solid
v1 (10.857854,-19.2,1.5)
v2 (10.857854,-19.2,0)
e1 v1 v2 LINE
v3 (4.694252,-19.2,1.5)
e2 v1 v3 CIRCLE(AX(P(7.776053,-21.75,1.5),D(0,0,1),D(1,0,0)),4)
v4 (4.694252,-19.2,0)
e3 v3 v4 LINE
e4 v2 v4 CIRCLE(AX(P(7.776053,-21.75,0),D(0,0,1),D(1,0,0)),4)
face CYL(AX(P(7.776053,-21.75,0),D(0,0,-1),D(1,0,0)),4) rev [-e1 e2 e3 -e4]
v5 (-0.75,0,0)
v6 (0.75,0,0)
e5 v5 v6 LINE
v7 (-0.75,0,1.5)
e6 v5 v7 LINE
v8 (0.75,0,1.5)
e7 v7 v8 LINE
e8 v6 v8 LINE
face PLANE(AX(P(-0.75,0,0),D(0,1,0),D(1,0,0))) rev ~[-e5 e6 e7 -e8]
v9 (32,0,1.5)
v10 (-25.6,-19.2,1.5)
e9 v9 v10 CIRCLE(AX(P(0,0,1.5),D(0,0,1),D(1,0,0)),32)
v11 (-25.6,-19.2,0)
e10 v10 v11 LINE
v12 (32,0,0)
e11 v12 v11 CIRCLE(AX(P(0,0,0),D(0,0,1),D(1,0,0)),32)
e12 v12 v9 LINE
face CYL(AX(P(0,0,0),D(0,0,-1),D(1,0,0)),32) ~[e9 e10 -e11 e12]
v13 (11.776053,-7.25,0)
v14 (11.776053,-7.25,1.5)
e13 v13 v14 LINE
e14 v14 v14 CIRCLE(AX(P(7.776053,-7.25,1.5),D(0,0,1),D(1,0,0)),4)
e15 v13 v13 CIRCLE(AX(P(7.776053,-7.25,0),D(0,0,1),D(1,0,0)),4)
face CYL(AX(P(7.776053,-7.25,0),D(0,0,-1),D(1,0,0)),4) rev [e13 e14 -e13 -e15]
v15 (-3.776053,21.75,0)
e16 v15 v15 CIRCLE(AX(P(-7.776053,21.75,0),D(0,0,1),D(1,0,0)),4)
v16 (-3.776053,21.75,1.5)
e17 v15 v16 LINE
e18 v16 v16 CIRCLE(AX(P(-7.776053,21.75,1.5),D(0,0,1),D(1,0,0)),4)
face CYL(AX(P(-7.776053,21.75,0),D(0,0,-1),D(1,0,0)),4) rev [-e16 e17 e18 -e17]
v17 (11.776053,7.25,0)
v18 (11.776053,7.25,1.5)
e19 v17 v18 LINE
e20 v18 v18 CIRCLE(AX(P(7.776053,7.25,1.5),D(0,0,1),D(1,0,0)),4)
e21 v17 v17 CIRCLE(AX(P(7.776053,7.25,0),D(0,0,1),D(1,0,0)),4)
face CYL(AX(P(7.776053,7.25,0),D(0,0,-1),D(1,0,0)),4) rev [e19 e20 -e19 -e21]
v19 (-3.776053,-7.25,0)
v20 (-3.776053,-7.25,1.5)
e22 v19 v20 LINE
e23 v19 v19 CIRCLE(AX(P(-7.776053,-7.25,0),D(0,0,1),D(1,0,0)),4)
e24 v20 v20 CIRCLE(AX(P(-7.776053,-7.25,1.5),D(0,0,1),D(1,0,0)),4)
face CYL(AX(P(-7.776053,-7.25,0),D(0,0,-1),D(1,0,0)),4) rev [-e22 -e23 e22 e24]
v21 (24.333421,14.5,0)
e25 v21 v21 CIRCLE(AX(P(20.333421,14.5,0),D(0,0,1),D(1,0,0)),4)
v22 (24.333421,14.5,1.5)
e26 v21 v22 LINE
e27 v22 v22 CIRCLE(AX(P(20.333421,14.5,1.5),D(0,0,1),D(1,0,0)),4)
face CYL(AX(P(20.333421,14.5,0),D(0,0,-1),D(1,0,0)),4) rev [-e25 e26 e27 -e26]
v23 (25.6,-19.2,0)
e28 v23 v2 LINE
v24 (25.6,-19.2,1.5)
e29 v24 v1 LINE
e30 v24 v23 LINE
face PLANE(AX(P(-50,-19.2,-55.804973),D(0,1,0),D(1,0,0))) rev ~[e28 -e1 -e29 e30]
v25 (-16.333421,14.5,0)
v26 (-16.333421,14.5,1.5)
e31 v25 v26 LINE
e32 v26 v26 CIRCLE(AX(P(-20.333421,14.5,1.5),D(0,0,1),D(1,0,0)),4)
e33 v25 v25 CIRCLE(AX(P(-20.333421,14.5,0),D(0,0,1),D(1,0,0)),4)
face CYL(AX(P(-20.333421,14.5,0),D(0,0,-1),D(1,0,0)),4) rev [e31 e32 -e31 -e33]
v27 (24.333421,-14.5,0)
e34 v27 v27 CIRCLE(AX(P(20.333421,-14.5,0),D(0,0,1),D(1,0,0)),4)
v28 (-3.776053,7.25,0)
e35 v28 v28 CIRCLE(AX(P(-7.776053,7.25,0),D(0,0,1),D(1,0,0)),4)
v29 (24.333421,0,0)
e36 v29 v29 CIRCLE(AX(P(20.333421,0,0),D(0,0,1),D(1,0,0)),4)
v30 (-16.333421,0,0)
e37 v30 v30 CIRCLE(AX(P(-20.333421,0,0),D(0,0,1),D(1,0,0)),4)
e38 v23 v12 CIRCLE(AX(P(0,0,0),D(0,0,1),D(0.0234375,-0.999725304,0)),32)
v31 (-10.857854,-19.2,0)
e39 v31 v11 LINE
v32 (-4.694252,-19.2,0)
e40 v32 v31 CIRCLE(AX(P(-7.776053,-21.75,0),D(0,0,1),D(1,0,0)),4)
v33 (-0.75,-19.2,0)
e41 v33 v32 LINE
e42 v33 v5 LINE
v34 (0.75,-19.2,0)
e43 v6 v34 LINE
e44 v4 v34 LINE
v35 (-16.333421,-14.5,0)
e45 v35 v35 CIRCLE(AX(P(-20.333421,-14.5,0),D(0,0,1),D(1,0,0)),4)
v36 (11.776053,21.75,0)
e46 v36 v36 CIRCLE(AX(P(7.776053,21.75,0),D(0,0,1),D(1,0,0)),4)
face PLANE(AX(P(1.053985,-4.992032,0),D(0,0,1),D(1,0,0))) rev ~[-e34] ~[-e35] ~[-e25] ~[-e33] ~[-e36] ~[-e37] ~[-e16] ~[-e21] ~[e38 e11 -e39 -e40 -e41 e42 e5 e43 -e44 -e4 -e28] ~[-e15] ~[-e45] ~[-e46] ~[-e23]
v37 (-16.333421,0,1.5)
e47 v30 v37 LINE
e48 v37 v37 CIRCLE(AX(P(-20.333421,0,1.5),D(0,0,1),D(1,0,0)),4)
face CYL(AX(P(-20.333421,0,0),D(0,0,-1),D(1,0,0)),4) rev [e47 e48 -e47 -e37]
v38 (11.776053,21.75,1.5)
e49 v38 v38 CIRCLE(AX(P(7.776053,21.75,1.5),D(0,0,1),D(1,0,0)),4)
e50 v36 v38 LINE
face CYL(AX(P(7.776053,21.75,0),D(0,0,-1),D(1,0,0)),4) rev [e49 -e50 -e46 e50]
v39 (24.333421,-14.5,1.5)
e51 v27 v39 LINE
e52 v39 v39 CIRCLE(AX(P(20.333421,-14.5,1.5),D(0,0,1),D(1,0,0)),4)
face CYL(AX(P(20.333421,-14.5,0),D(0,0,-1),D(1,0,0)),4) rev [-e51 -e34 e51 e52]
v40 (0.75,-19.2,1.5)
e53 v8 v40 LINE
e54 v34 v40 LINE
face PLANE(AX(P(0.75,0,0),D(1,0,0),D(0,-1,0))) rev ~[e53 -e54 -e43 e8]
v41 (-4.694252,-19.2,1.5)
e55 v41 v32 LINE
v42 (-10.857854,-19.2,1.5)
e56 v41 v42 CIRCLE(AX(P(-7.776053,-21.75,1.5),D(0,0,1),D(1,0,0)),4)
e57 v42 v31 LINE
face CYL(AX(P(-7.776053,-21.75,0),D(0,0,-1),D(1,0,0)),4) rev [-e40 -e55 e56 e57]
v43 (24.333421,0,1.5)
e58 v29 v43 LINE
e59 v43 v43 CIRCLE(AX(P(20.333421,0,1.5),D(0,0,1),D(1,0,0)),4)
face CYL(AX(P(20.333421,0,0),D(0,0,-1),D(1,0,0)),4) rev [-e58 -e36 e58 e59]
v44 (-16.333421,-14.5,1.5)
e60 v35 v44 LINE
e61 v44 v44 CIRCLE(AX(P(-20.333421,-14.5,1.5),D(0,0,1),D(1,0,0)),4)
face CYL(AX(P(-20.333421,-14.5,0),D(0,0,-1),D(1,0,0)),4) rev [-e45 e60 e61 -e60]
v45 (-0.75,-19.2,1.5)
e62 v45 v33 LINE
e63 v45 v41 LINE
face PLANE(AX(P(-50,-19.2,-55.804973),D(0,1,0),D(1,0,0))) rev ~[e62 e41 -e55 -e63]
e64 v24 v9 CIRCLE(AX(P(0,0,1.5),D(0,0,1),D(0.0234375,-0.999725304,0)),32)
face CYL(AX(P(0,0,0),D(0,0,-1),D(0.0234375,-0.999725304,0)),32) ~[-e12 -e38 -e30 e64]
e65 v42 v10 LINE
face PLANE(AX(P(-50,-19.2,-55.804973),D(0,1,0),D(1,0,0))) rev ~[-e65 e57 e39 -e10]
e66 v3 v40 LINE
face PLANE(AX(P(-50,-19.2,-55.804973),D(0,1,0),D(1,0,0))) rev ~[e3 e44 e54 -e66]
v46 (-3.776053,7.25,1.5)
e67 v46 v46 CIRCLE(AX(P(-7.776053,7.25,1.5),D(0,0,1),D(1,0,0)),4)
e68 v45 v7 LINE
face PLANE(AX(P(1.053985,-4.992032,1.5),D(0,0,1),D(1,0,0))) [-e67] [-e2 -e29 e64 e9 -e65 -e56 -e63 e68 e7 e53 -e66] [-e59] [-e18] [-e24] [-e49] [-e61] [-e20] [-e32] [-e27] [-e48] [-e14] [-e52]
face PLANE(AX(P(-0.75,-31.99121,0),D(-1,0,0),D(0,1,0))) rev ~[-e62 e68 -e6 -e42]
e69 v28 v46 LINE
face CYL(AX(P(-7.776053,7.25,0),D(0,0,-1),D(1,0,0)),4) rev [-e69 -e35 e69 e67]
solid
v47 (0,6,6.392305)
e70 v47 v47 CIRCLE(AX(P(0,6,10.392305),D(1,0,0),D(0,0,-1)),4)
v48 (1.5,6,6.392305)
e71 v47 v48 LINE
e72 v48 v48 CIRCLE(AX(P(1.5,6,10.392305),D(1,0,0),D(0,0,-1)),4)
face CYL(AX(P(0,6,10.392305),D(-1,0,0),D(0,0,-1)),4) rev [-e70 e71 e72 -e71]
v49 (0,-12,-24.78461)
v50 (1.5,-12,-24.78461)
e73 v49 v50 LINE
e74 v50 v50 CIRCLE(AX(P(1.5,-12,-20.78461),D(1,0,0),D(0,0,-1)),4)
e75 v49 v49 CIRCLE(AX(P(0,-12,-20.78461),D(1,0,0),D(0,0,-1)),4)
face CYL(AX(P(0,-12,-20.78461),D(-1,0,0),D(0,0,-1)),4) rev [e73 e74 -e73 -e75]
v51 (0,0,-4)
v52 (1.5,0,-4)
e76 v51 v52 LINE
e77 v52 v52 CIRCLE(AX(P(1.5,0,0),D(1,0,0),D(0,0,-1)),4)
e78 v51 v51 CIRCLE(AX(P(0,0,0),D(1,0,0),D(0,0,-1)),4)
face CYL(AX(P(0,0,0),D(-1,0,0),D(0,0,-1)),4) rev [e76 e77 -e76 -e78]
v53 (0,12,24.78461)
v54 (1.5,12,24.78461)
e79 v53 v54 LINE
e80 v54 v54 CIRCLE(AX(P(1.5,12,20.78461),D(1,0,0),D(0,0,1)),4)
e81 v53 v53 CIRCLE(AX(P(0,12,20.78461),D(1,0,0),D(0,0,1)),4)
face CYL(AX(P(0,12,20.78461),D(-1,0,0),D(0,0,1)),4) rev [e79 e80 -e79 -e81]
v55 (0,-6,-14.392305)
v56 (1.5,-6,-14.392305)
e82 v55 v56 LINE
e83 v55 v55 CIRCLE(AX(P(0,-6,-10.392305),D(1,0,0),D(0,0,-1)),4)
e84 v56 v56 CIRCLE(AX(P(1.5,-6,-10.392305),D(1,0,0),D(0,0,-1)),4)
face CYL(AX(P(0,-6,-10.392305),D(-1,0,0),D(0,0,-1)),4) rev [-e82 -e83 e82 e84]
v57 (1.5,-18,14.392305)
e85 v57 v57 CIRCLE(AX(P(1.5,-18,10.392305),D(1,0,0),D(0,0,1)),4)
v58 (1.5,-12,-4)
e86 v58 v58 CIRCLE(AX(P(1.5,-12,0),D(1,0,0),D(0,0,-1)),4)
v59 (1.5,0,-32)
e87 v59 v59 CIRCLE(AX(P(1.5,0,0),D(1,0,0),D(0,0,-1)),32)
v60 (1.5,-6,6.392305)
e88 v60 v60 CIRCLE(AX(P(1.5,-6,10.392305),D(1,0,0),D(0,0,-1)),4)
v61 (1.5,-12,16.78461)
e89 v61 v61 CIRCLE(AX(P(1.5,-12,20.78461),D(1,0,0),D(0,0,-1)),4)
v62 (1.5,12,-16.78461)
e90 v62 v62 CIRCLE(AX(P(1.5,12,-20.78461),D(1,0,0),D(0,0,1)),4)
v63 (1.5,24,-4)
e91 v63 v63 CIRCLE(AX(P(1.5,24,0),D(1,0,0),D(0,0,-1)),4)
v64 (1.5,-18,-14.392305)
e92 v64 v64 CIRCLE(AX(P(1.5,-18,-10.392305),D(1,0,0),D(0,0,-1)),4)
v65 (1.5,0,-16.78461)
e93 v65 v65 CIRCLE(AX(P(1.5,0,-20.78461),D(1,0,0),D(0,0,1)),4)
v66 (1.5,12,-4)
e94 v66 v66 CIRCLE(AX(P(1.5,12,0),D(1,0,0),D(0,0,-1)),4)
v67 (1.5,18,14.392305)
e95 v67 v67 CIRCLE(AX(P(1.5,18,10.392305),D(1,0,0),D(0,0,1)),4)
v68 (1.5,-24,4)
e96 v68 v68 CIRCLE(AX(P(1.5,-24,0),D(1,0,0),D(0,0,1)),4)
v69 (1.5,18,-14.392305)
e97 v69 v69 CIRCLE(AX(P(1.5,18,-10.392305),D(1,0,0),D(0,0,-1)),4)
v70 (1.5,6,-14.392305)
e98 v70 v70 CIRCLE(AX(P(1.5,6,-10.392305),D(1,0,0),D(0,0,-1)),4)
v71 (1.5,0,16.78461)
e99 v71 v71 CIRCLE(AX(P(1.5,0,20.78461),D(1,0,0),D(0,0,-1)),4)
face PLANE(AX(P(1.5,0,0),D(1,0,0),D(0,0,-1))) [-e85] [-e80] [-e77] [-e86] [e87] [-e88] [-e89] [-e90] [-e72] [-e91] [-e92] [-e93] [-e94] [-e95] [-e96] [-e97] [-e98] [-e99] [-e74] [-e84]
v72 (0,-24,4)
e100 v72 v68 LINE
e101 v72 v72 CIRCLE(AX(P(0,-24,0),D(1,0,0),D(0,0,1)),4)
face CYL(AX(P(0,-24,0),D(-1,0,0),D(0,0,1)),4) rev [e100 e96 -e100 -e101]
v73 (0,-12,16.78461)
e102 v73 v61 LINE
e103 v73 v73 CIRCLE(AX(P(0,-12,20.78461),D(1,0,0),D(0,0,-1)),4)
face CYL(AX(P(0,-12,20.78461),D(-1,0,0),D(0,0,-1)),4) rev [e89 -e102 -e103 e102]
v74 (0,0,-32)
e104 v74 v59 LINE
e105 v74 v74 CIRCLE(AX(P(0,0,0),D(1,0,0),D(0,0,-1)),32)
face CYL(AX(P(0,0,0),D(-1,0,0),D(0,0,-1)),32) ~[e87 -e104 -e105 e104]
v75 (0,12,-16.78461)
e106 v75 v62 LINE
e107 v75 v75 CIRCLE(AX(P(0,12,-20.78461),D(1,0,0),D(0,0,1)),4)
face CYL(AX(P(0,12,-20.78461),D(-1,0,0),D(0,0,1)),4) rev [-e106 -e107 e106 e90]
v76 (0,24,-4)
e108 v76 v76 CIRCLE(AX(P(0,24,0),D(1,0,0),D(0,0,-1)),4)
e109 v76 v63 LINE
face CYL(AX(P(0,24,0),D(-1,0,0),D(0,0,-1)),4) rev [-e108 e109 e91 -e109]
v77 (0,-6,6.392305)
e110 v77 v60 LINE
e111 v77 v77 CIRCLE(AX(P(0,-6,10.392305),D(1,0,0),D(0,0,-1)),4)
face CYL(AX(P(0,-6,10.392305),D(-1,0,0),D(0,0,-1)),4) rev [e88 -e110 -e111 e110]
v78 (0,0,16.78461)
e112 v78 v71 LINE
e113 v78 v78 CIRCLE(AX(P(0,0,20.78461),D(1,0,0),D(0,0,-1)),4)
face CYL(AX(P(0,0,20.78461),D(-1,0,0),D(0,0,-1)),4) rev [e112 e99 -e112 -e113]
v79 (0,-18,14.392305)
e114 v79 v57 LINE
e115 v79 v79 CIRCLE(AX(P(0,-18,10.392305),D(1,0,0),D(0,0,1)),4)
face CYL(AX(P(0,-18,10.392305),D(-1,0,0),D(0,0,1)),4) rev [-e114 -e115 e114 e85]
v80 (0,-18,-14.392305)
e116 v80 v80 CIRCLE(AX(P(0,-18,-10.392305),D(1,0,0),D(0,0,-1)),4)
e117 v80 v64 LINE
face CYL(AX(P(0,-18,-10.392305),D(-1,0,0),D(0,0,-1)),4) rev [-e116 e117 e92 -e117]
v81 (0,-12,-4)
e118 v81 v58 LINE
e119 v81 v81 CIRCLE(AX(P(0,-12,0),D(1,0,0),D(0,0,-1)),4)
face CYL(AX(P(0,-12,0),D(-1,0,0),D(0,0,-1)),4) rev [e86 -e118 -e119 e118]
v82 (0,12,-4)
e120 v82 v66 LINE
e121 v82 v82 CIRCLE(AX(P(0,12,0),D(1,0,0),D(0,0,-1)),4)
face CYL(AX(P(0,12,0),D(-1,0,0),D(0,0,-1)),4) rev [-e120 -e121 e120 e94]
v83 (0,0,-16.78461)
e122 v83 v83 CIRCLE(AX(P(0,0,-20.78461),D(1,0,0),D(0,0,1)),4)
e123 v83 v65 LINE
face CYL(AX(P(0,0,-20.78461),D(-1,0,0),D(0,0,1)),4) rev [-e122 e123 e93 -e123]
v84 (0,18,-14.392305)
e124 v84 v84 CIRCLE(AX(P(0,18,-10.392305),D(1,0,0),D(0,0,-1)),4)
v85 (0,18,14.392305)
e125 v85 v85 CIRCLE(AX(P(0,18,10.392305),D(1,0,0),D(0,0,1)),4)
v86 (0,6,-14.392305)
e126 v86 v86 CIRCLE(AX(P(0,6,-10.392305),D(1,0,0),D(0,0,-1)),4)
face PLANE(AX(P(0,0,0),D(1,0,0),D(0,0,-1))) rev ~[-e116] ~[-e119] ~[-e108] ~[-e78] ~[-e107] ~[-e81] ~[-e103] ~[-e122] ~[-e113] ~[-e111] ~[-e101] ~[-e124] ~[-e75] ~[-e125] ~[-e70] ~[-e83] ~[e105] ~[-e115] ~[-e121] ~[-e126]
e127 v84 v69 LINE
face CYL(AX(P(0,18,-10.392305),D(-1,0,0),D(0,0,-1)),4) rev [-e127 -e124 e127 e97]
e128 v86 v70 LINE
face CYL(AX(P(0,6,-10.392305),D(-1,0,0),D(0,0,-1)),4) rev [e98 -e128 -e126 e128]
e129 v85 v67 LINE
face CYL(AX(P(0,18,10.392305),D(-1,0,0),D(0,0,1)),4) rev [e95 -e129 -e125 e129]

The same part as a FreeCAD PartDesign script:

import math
import FreeCAD as App
import Part
import Sketcher
from FreeCAD import Vector

doc = App.newDocument("Part")
body = doc.addObject("PartDesign::Body", "Body")

sketch1 = body.newObject("Sketcher::SketchObject", "Sketch")
sketch1.AttachmentSupport = (doc.getObject("YZ_Plane"), [""])
sketch1.MapMode = "FlatFace"
sketch1.addGeometry([
    Part.Circle(Vector(0, 0, 0), Vector(0, 0, 1), 32),
    Part.Circle(Vector(-18, 10.4, 0), Vector(0, 0, 1), 4),
    Part.Circle(Vector(-12, 20.8, 0), Vector(0, 0, 1), 4),
    Part.Circle(Vector(-6, 10.4, 0), Vector(0, 0, 1), 4),
    Part.Circle(Vector(-24, 0, 0), Vector(0, 0, 1), 4),
    Part.Circle(Vector(-18, -10.4, 0), Vector(0, 0, 1), 4),
    Part.Circle(Vector(-12, 0, 0), Vector(0, 0, 1), 4),
    Part.Circle(Vector(-6, -10.4, 0), Vector(0, 0, 1), 4),
    Part.Circle(Vector(-12, -20.8, 0), Vector(0, 0, 1), 4),
    Part.Circle(Vector(0, 20.8, 0), Vector(0, 0, 1), 4),
    Part.Circle(Vector(12, 20.8, 0), Vector(0, 0, 1), 4),
    Part.Circle(Vector(6, 10.4, 0), Vector(0, 0, 1), 4),
    Part.Circle(Vector(18, 10.4, 0), Vector(0, 0, 1), 4),
    Part.Circle(Vector(0, 0, 0), Vector(0, 0, 1), 4),
    Part.Circle(Vector(6, -10.4, 0), Vector(0, 0, 1), 4),
    Part.Circle(Vector(12, 0, 0), Vector(0, 0, 1), 4),
    Part.Circle(Vector(0, -20.8, 0), Vector(0, 0, 1), 4),
    Part.Circle(Vector(12, -20.8, 0), Vector(0, 0, 1), 4),
    Part.Circle(Vector(18, -10.4, 0), Vector(0, 0, 1), 4),
    Part.Circle(Vector(24, 0, 0), Vector(0, 0, 1), 4),
], False)
sketch1.addConstraint([
    Sketcher.Constraint("Coincident", 0, 3, -1, 1),
    Sketcher.Constraint("Coincident", 13, 3, -1, 1),
    Sketcher.Constraint("Equal", 1, 2),
    Sketcher.Constraint("Equal", 2, 3),
    Sketcher.Constraint("Equal", 3, 4),
    Sketcher.Constraint("Equal", 4, 5),
    Sketcher.Constraint("Equal", 5, 6),
    Sketcher.Constraint("Equal", 6, 7),
    Sketcher.Constraint("Equal", 7, 8),
    Sketcher.Constraint("Equal", 8, 9),
    Sketcher.Constraint("Equal", 9, 10),
    Sketcher.Constraint("Equal", 10, 11),
    Sketcher.Constraint("Equal", 11, 12),
    Sketcher.Constraint("Equal", 12, 13),
    Sketcher.Constraint("Equal", 13, 14),
    Sketcher.Constraint("Equal", 14, 15),
    Sketcher.Constraint("Equal", 15, 16),
    Sketcher.Constraint("Equal", 16, 17),
    Sketcher.Constraint("Equal", 17, 18),
    Sketcher.Constraint("Equal", 18, 19),
    Sketcher.Constraint("Symmetric", 8, 3, 10, 3, -1, 1),
    Sketcher.Constraint("Symmetric", 7, 3, 11, 3, -1, 1),
    Sketcher.Constraint("Symmetric", 5, 3, 12, 3, -1, 1),
    Sketcher.Constraint("Symmetric", 3, 3, 14, 3, -1, 1),
    Sketcher.Constraint("Symmetric", 6, 3, 15, 3, -1, 1),
    Sketcher.Constraint("Symmetric", 9, 3, 16, 3, -1, 1),
    Sketcher.Constraint("Symmetric", 2, 3, 17, 3, -1, 1),
    Sketcher.Constraint("Symmetric", 1, 3, 18, 3, -1, 1),
    Sketcher.Constraint("Symmetric", 4, 3, 19, 3, -1, 1),
    Sketcher.Constraint("Symmetric", 2, 3, 10, 3, -2),
    Sketcher.Constraint("Symmetric", 3, 3, 11, 3, -2),
    Sketcher.Constraint("Symmetric", 1, 3, 12, 3, -2),
    Sketcher.Constraint("PointOnObject", 4, 3, -1),
    Sketcher.Constraint("PointOnObject", 6, 3, -1),
    Sketcher.Constraint("PointOnObject", 9, 3, -2),
    Sketcher.Constraint("Horizontal", 1, 3, 3, 3),
    Sketcher.Constraint("Horizontal", 2, 3, 9, 3),
    Sketcher.Constraint("Vertical", 2, 3, 6, 3),
    Sketcher.Constraint("Diameter", 0, 64.0),
    Sketcher.Constraint("Diameter", 1, 8.0),
    Sketcher.Constraint("DistanceX", 1, 3, -1, 1, 18.0),
    Sketcher.Constraint("DistanceX", 2, 3, -1, 1, 12.0),
    Sketcher.Constraint("DistanceX", 3, 3, -1, 1, 6.0),
    Sketcher.Constraint("DistanceX", 4, 3, -1, 1, 24.0),
    Sketcher.Constraint("DistanceY", -1, 1, 2, 3, 20.78461),
    Sketcher.Constraint("DistanceY", 5, 3, 1, 3, 20.78461),
])
pad1 = body.newObject("PartDesign::Pad", "Pad")
pad1.Profile = sketch1
pad1.Length = 1.5
body2 = doc.addObject("PartDesign::Body", "Body001")

sketch2 = body2.newObject("Sketcher::SketchObject", "Sketch001")
sketch2.AttachmentSupport = (doc.getObject("XY_Plane001"), [""])
sketch2.MapMode = "FlatFace"
sketch2.addGeometry([
    Part.ArcOfCircle(Part.Circle(Vector(0, 0, 0), Vector(0, 0, 1), 32), math.radians(0), math.radians(269)),
    Part.LineSegment(Vector(-0.8, -32, 0), Vector(-0.8, 0, 0)),
    Part.LineSegment(Vector(-0.8, 0, 0), Vector(0.8, 0, 0)),
    Part.LineSegment(Vector(0.8, 0, 0), Vector(0.8, -32, 0)),
    Part.ArcOfCircle(Part.Circle(Vector(0, 0, 0), Vector(0, 0, 1), 32), math.radians(-89), math.radians(0)),
    Part.Circle(Vector(-20.3, -14.5, 0), Vector(0, 0, 1), 4),
    Part.Circle(Vector(-7.8, -21.8, 0), Vector(0, 0, 1), 4),
    Part.Circle(Vector(-20.3, 0, 0), Vector(0, 0, 1), 4),
    Part.Circle(Vector(-7.8, -7.2, 0), Vector(0, 0, 1), 4),
    Part.Circle(Vector(7.8, -21.8, 0), Vector(0, 0, 1), 4),
    Part.Circle(Vector(20.3, -14.5, 0), Vector(0, 0, 1), 4),
    Part.Circle(Vector(7.8, -7.2, 0), Vector(0, 0, 1), 4),
    Part.Circle(Vector(20.3, 0, 0), Vector(0, 0, 1), 4),
    Part.Circle(Vector(-7.8, 7.2, 0), Vector(0, 0, 1), 4),
    Part.Circle(Vector(-20.3, 14.5, 0), Vector(0, 0, 1), 4),
    Part.Circle(Vector(-7.8, 21.8, 0), Vector(0, 0, 1), 4),
    Part.Circle(Vector(7.8, 7.2, 0), Vector(0, 0, 1), 4),
    Part.Circle(Vector(7.8, 21.8, 0), Vector(0, 0, 1), 4),
    Part.Circle(Vector(20.3, 14.5, 0), Vector(0, 0, 1), 4),
], False)
sketch2.addConstraint([
    Sketcher.Constraint("Coincident", 0, 2, 1, 1),
    Sketcher.Constraint("Coincident", 1, 2, 2, 1),
    Sketcher.Constraint("Coincident", 2, 2, 3, 1),
    Sketcher.Constraint("Coincident", 3, 2, 4, 1),
    Sketcher.Constraint("Tangent", 4, 2, 0, 1),
    Sketcher.Constraint("Vertical", 1),
    Sketcher.Constraint("Horizontal", 2),
    Sketcher.Constraint("Vertical", 3),
    Sketcher.Constraint("Coincident", 0, 3, -1, 1),
    Sketcher.Constraint("Equal", 0, 4),
    Sketcher.Constraint("Equal", 5, 6),
    Sketcher.Constraint("Equal", 6, 7),
    Sketcher.Constraint("Equal", 7, 8),
    Sketcher.Constraint("Equal", 8, 9),
    Sketcher.Constraint("Equal", 9, 10),
    Sketcher.Constraint("Equal", 10, 11),
    Sketcher.Constraint("Equal", 11, 12),
    Sketcher.Constraint("Equal", 12, 13),
    Sketcher.Constraint("Equal", 13, 14),
    Sketcher.Constraint("Equal", 14, 15),
    Sketcher.Constraint("Equal", 15, 16),
    Sketcher.Constraint("Equal", 16, 17),
    Sketcher.Constraint("Equal", 17, 18),
    Sketcher.Constraint("Symmetric", 7, 3, 12, 3, -1, 1),
    Sketcher.Constraint("Symmetric", 11, 3, 13, 3, -1, 1),
    Sketcher.Constraint("Symmetric", 10, 3, 14, 3, -1, 1),
    Sketcher.Constraint("Symmetric", 9, 3, 15, 3, -1, 1),
    Sketcher.Constraint("Symmetric", 8, 3, 16, 3, -1, 1),
    Sketcher.Constraint("Symmetric", 6, 3, 17, 3, -1, 1),
    Sketcher.Constraint("Symmetric", 5, 3, 18, 3, -1, 1),
    Sketcher.Constraint("Symmetric", 1, 2, 2, 2, -1, 1),
    Sketcher.Constraint("Symmetric", 6, 3, 9, 3, -2),
    Sketcher.Constraint("Symmetric", 5, 3, 10, 3, -2),
    Sketcher.Constraint("Symmetric", 8, 3, 11, 3, -2),
    Sketcher.Constraint("PointOnObject", 7, 3, -1),
    Sketcher.Constraint("PointOnObject", 4, 2, -1),
    Sketcher.Constraint("Vertical", 5, 3, 7, 3),
    Sketcher.Constraint("Vertical", 6, 3, 8, 3),
    Sketcher.Constraint("Diameter", 5, 8.0),
    Sketcher.Constraint("Radius", 0, 32.0),
    Sketcher.Constraint("DistanceX", 2, 1, 2, 2, 1.5),
    Sketcher.Constraint("DistanceY", 5, 3, -1, 1, 14.5),
    Sketcher.Constraint("DistanceY", 6, 3, 8, 3, 14.5),
    Sketcher.Constraint("DistanceY", 8, 3, 13, 3, 14.5),
    Sketcher.Constraint("DistanceX", 5, 3, -1, 1, 20.333421),
    Sketcher.Constraint("DistanceX", 5, 3, 6, 3, 12.557368),
])
pad2 = body2.newObject("PartDesign::Pad", "Pad001")
pad2.Profile = sketch2
pad2.Length = 1.5

sketch3 = body2.newObject("Sketcher::SketchObject", "Sketch002")
sketch3.AttachmentSupport = (doc.getObject("XY_Plane001"), [""])
sketch3.MapMode = "FlatFace"
sketch3.AttachmentOffset = App.Placement(Vector(0, 0, 1.5), App.Rotation())
sketch3.addGeometry([
    Part.LineSegment(Vector(-50, -19, 0), Vector(-50, -32, 0)),
    Part.LineSegment(Vector(-50, -32, 0), Vector(50, -32, 0)),
    Part.LineSegment(Vector(50, -32, 0), Vector(50, -19, 0)),
    Part.LineSegment(Vector(50, -19, 0), Vector(-50, -19, 0)),
], False)
sketch3.addConstraint([
    Sketcher.Constraint("Coincident", 0, 2, 1, 1),
    Sketcher.Constraint("Coincident", 1, 2, 2, 1),
    Sketcher.Constraint("Coincident", 2, 2, 3, 1),
    Sketcher.Constraint("Coincident", 3, 2, 0, 1),
    Sketcher.Constraint("Vertical", 0),
    Sketcher.Constraint("Horizontal", 1),
    Sketcher.Constraint("Vertical", 2),
    Sketcher.Constraint("Horizontal", 3),
    Sketcher.Constraint("DistanceX", 1, 1, 1, 2, 100.0),
    Sketcher.Constraint("DistanceY", 0, 2, 0, 1, 12.8),
    Sketcher.Constraint("DistanceX", 0, 2, -1, 1, 50.0),
    Sketcher.Constraint("DistanceY", 0, 2, -1, 1, 32.0),
])
pocket1 = body2.newObject("PartDesign::Pocket", "Pocket")
pocket1.Profile = sketch3
pocket1.Type = "ThroughAll"
pocket1.Midplane = True

doc.recompute()
